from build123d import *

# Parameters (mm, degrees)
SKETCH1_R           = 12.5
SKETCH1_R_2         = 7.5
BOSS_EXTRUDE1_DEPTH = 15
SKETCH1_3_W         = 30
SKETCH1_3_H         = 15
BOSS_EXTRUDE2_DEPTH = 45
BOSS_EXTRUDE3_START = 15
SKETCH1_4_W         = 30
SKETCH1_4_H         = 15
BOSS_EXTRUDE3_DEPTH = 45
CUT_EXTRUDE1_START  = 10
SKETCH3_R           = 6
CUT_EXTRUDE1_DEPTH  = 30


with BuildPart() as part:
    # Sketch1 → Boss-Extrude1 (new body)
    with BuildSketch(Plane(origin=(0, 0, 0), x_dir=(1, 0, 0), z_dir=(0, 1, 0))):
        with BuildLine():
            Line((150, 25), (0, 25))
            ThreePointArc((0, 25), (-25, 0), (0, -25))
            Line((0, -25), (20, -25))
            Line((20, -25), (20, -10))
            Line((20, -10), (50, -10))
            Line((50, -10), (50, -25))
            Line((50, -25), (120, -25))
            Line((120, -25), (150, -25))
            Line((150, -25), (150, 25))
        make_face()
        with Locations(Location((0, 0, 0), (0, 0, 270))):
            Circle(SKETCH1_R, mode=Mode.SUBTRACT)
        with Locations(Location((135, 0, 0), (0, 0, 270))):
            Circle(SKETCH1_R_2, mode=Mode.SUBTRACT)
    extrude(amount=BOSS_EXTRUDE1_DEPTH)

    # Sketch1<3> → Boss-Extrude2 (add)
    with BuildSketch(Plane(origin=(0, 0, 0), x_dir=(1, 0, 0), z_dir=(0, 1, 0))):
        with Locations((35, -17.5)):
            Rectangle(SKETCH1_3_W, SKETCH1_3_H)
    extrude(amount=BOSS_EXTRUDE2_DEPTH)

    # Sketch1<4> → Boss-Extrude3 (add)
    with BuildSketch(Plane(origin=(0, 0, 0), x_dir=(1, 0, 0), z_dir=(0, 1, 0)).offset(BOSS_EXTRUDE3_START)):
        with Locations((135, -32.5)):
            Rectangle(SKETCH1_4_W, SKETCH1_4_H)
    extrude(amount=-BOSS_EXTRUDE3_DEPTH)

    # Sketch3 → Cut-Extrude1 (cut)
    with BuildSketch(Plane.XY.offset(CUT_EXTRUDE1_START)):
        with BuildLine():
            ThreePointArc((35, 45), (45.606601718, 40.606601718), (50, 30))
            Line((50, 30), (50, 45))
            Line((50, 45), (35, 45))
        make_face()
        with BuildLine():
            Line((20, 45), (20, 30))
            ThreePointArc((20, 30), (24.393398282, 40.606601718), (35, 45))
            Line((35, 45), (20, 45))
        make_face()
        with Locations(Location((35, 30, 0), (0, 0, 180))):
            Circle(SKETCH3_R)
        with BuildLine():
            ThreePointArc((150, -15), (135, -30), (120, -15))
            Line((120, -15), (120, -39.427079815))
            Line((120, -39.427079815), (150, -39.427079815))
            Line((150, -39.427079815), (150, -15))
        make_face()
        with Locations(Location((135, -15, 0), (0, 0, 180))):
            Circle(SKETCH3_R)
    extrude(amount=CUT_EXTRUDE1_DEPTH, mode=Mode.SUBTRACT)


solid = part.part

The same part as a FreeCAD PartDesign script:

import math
import FreeCAD as App
import Part
import Sketcher
Q = App.Units.Quantity

doc = App.newDocument("Part")
body = doc.addObject("PartDesign::Body", "Body")

# Sketch on XZ plane
sketch1 = doc.addObject("Sketcher::SketchObject", "Sketch")
body.addObject(sketch1)
sketch1.AttachmentSupport = (doc.XZ_Plane, [""])
sketch1.MapMode = "FlatFace"
sketch1.addGeometry([
    Part.LineSegment(App.Vector(150, -25, 0), App.Vector(0, -25, 0)),  # 0
    Part.ArcOfCircle(Part.Circle(App.Vector(0, 0, 0), App.Vector(0, 0, 1), 25), math.radians(90), math.radians(270)),  # 1
    Part.LineSegment(App.Vector(0, 25, 0), App.Vector(20, 25, 0)),  # 2
    Part.LineSegment(App.Vector(20, 25, 0), App.Vector(20, 10, 0)),  # 3
    Part.LineSegment(App.Vector(20, 10, 0), App.Vector(50, 10, 0)),  # 4
    Part.LineSegment(App.Vector(50, 10, 0), App.Vector(50, 25, 0)),  # 5
    Part.LineSegment(App.Vector(50, 25, 0), App.Vector(150, 25, 0)),  # 6
    Part.LineSegment(App.Vector(150, 25, 0), App.Vector(150, -25, 0)),  # 7
    Part.Circle(App.Vector(0, 0, 0), App.Vector(0, 0, 1), 12),  # 8
    Part.Circle(App.Vector(135, 0, 0), App.Vector(0, 0, 1), 8),  # 9
], False)
sketch1.addConstraint([
    Sketcher.Constraint("Tangent", 0, 2, 1, 2),
    Sketcher.Constraint("Tangent", 1, 1, 2, 1),
    Sketcher.Constraint("Coincident", 2, 2, 3, 1),
    Sketcher.Constraint("Coincident", 3, 2, 4, 1),
    Sketcher.Constraint("Coincident", 4, 2, 5, 1),
    Sketcher.Constraint("Coincident", 5, 2, 6, 1),
    Sketcher.Constraint("Coincident", 6, 2, 7, 1),
    Sketcher.Constraint("Coincident", 7, 2, 0, 1),
    Sketcher.Constraint("Horizontal", 0),
    Sketcher.Constraint("Horizontal", 2),
    Sketcher.Constraint("Vertical", 3),
    Sketcher.Constraint("Horizontal", 4),
    Sketcher.Constraint("Vertical", 5),
    Sketcher.Constraint("Horizontal", 6),
    Sketcher.Constraint("Vertical", 7),
    Sketcher.Constraint("Coincident", 1, 3, -1, 1),
    Sketcher.Constraint("Coincident", 8, 3, -1, 1),
    Sketcher.Constraint("PointOnObject", 9, 3, -1),
    Sketcher.Constraint("Horizontal", 2, 2, 5, 2),
    Sketcher.Constraint("Diameter", 8, Q("25 mm")),
    Sketcher.Constraint("Diameter", 9, Q("15 mm")),
    Sketcher.Constraint("Radius", 1, Q("25 mm")),
    Sketcher.Constraint("DistanceX", 0, 2, 0, 1, Q("150 mm")),
    Sketcher.Constraint("DistanceX", 2, 1, 2, 2, Q("20 mm")),
    Sketcher.Constraint("DistanceX", 4, 1, 4, 2, Q("30 mm")),
    Sketcher.Constraint("DistanceY", 3, 2, 3, 1, Q("15 mm")),
    Sketcher.Constraint("DistanceX", -1, 1, 9, 3, Q("135 mm")),
])
pad1 = doc.addObject("PartDesign::Pad", "Pad")
body.addObject(pad1)
pad1.Profile = sketch1
pad1.Length = 15
pad1.Reversed = True

# Sketch on XZ plane
sketch2 = doc.addObject("Sketcher::SketchObject", "Sketch001")
body.addObject(sketch2)
sketch2.AttachmentSupport = (doc.XZ_Plane, [""])
sketch2.MapMode = "FlatFace"
sketch2.addGeometry([
    Part.LineSegment(App.Vector(20, 10, 0), App.Vector(20, 25, 0)),
    Part.LineSegment(App.Vector(20, 25, 0), App.Vector(50, 25, 0)),
    Part.LineSegment(App.Vector(50, 25, 0), App.Vector(50, 10, 0)),
    Part.LineSegment(App.Vector(50, 10, 0), App.Vector(20, 10, 0)),
], False)
sketch2.addConstraint([
    Sketcher.Constraint("Coincident", 0, 2, 1, 1),
    Sketcher.Constraint("Coincident", 1, 2, 2, 1),
    Sketcher.Constraint("Coincident", 2, 2, 3, 1),
    Sketcher.Constraint("Coincident", 3, 2, 0, 1),
    Sketcher.Constraint("Vertical", 0),
    Sketcher.Constraint("Horizontal", 1),
    Sketcher.Constraint("Vertical", 2),
    Sketcher.Constraint("Horizontal", 3),
    Sketcher.Constraint("DistanceX", 1, 1, 1, 2, Q("30 mm")),
    Sketcher.Constraint("DistanceY", 0, 1, 0, 2, Q("15 mm")),
    Sketcher.Constraint("DistanceX", -1, 1, 0, 2, Q("20 mm")),
    Sketcher.Constraint("DistanceY", -1, 1, 0, 2, Q("25 mm")),
])
pad2 = doc.addObject("PartDesign::Pad", "Pad001")
body.addObject(pad2)
pad2.Profile = sketch2
pad2.Length = 45
pad2.Reversed = True

# Sketch on XZ plane
sketch3 = doc.addObject("Sketcher::SketchObject", "Sketch002")
body.addObject(sketch3)
sketch3.AttachmentSupport = (doc.XZ_Plane, [""])
sketch3.MapMode = "FlatFace"
sketch3.AttachmentOffset = App.Placement(App.Vector(0, 0, -15), App.Rotation())
sketch3.addGeometry([
    Part.LineSegment(App.Vector(120, 25, 0), App.Vector(120, 40, 0)),
    Part.LineSegment(App.Vector(120, 40, 0), App.Vector(150, 40, 0)),
    Part.LineSegment(App.Vector(150, 40, 0), App.Vector(150, 25, 0)),
    Part.LineSegment(App.Vector(150, 25, 0), App.Vector(120, 25, 0)),
], False)
sketch3.addConstraint([
    Sketcher.Constraint("Coincident", 0, 2, 1, 1),
    Sketcher.Constraint("Coincident", 1, 2, 2, 1),
    Sketcher.Constraint("Coincident", 2, 2, 3, 1),
    Sketcher.Constraint("Coincident", 3, 2, 0, 1),
    Sketcher.Constraint("Vertical", 0),
    Sketcher.Constraint("Horizontal", 1),
    Sketcher.Constraint("Vertical", 2),
    Sketcher.Constraint("Horizontal", 3),
    Sketcher.Constraint("DistanceX", 1, 1, 1, 2, Q("30 mm")),
    Sketcher.Constraint("DistanceY", 0, 1, 0, 2, Q("15 mm")),
    Sketcher.Constraint("DistanceX", -1, 1, 0, 2, Q("120 mm")),
    Sketcher.Constraint("DistanceY", -1, 1, 0, 2, Q("40 mm")),
])
pad3 = doc.addObject("PartDesign::Pad", "Pad002")
body.addObject(pad3)
pad3.Profile = sketch3
pad3.Length = 45

# Sketch on XY plane
sketch4 = doc.addObject("Sketcher::SketchObject", "Sketch003")
body.addObject(sketch4)
sketch4.AttachmentSupport = (doc.XY_Plane, [""])
sketch4.MapMode = "FlatFace"
sketch4.AttachmentOffset = App.Placement(App.Vector(0, 0, 10), App.Rotation())
sketch4.addGeometry([
    Part.ArcOfCircle(Part.Circle(App.Vector(35, 30, 0), App.Vector(0, 0, 1), 15), math.radians(0), math.radians(90)),  # 0
    Part.LineSegment(App.Vector(50, 30, 0), App.Vector(50, 45, 0)),  # 1
    Part.LineSegment(App.Vector(50, 45, 0), App.Vector(35, 45, 0)),  # 2
    Part.LineSegment(App.Vector(20, 45, 0), App.Vector(20, 30, 0)),  # 3
    Part.ArcOfCircle(Part.Circle(App.Vector(35, 30, 0), App.Vector(0, 0, 1), 15), math.radians(90), math.radians(180)),  # 4
    Part.LineSegment(App.Vector(35, 45, 0), App.Vector(20, 45, 0)),  # 5
    Part.Circle(App.Vector(35, 30, 0), App.Vector(0, 0, 1), 6),  # 6
    Part.ArcOfCircle(Part.Circle(App.Vector(135, -15, 0), App.Vector(0, 0, 1), 15), math.radians(180), math.radians(360)),  # 7
    Part.LineSegment(App.Vector(120, -15, 0), App.Vector(120, -39, 0)),  # 8
    Part.LineSegment(App.Vector(120, -39, 0), App.Vector(150, -39, 0)),  # 9
    Part.LineSegment(App.Vector(150, -39, 0), App.Vector(150, -15, 0)),  # 10
    Part.Circle(App.Vector(135, -15, 0), App.Vector(0, 0, 1), 6),  # 11
], False)
sketch4.addConstraint([
    Sketcher.Constraint("Tangent", 0, 1, 1, 1),
    Sketcher.Constraint("Coincident", 1, 2, 2, 1),
    Sketcher.Constraint("Tangent", 2, 2, 0, 2),
    Sketcher.Constraint("Tangent", 3, 2, 4, 2),
    Sketcher.Constraint("Tangent", 4, 1, 5, 1),
    Sketcher.Constraint("Coincident", 5, 2, 3, 1),
    Sketcher.Constraint("Tangent", 7, 1, 8, 1),
    Sketcher.Constraint("Coincident", 8, 2, 9, 1),
    Sketcher.Constraint("Coincident", 9, 2, 10, 1),
    Sketcher.Constraint("Tangent", 10, 2, 7, 2),
    Sketcher.Constraint("Vertical", 1),
    Sketcher.Constraint("Horizontal", 2),
    Sketcher.Constraint("Vertical", 3),
    Sketcher.Constraint("Horizontal", 5),
    Sketcher.Constraint("Vertical", 8),
    Sketcher.Constraint("Horizontal", 9),
    Sketcher.Constraint("Vertical", 10),
    Sketcher.Constraint("Coincident", 4, 3, 0, 3),
    Sketcher.Constraint("Coincident", 6, 3, 0, 3),
    Sketcher.Constraint("Coincident", 11, 3, 7, 3),
    Sketcher.Constraint("Equal", 0, 4),
    Sketcher.Constraint("Equal", 4, 7),
    Sketcher.Constraint("Equal", 6, 11),
    Sketcher.Constraint("Diameter", 6, Q("12 mm")),
    Sketcher.Constraint("Radius", 0, Q("15 mm")),
    Sketcher.Constraint("DistanceX", -1, 1, 0, 3, Q("35 mm")),
    Sketcher.Constraint("DistanceY", -1, 1, 0, 3, Q("30 mm")),
    Sketcher.Constraint("DistanceX", -1, 1, 7, 3, Q("135 mm")),
    Sketcher.Constraint("DistanceY", 7, 3, -1, 1, Q("15 mm")),
    Sketcher.Constraint("DistanceY", 8, 2, 8, 1, Q("24.42708 mm")),
])
pocket1 = doc.addObject("PartDesign::Pocket", "Pocket")
body.addObject(pocket1)
pocket1.Profile = sketch4
pocket1.Length = 30
pocket1.Reversed = True

doc.recompute()
